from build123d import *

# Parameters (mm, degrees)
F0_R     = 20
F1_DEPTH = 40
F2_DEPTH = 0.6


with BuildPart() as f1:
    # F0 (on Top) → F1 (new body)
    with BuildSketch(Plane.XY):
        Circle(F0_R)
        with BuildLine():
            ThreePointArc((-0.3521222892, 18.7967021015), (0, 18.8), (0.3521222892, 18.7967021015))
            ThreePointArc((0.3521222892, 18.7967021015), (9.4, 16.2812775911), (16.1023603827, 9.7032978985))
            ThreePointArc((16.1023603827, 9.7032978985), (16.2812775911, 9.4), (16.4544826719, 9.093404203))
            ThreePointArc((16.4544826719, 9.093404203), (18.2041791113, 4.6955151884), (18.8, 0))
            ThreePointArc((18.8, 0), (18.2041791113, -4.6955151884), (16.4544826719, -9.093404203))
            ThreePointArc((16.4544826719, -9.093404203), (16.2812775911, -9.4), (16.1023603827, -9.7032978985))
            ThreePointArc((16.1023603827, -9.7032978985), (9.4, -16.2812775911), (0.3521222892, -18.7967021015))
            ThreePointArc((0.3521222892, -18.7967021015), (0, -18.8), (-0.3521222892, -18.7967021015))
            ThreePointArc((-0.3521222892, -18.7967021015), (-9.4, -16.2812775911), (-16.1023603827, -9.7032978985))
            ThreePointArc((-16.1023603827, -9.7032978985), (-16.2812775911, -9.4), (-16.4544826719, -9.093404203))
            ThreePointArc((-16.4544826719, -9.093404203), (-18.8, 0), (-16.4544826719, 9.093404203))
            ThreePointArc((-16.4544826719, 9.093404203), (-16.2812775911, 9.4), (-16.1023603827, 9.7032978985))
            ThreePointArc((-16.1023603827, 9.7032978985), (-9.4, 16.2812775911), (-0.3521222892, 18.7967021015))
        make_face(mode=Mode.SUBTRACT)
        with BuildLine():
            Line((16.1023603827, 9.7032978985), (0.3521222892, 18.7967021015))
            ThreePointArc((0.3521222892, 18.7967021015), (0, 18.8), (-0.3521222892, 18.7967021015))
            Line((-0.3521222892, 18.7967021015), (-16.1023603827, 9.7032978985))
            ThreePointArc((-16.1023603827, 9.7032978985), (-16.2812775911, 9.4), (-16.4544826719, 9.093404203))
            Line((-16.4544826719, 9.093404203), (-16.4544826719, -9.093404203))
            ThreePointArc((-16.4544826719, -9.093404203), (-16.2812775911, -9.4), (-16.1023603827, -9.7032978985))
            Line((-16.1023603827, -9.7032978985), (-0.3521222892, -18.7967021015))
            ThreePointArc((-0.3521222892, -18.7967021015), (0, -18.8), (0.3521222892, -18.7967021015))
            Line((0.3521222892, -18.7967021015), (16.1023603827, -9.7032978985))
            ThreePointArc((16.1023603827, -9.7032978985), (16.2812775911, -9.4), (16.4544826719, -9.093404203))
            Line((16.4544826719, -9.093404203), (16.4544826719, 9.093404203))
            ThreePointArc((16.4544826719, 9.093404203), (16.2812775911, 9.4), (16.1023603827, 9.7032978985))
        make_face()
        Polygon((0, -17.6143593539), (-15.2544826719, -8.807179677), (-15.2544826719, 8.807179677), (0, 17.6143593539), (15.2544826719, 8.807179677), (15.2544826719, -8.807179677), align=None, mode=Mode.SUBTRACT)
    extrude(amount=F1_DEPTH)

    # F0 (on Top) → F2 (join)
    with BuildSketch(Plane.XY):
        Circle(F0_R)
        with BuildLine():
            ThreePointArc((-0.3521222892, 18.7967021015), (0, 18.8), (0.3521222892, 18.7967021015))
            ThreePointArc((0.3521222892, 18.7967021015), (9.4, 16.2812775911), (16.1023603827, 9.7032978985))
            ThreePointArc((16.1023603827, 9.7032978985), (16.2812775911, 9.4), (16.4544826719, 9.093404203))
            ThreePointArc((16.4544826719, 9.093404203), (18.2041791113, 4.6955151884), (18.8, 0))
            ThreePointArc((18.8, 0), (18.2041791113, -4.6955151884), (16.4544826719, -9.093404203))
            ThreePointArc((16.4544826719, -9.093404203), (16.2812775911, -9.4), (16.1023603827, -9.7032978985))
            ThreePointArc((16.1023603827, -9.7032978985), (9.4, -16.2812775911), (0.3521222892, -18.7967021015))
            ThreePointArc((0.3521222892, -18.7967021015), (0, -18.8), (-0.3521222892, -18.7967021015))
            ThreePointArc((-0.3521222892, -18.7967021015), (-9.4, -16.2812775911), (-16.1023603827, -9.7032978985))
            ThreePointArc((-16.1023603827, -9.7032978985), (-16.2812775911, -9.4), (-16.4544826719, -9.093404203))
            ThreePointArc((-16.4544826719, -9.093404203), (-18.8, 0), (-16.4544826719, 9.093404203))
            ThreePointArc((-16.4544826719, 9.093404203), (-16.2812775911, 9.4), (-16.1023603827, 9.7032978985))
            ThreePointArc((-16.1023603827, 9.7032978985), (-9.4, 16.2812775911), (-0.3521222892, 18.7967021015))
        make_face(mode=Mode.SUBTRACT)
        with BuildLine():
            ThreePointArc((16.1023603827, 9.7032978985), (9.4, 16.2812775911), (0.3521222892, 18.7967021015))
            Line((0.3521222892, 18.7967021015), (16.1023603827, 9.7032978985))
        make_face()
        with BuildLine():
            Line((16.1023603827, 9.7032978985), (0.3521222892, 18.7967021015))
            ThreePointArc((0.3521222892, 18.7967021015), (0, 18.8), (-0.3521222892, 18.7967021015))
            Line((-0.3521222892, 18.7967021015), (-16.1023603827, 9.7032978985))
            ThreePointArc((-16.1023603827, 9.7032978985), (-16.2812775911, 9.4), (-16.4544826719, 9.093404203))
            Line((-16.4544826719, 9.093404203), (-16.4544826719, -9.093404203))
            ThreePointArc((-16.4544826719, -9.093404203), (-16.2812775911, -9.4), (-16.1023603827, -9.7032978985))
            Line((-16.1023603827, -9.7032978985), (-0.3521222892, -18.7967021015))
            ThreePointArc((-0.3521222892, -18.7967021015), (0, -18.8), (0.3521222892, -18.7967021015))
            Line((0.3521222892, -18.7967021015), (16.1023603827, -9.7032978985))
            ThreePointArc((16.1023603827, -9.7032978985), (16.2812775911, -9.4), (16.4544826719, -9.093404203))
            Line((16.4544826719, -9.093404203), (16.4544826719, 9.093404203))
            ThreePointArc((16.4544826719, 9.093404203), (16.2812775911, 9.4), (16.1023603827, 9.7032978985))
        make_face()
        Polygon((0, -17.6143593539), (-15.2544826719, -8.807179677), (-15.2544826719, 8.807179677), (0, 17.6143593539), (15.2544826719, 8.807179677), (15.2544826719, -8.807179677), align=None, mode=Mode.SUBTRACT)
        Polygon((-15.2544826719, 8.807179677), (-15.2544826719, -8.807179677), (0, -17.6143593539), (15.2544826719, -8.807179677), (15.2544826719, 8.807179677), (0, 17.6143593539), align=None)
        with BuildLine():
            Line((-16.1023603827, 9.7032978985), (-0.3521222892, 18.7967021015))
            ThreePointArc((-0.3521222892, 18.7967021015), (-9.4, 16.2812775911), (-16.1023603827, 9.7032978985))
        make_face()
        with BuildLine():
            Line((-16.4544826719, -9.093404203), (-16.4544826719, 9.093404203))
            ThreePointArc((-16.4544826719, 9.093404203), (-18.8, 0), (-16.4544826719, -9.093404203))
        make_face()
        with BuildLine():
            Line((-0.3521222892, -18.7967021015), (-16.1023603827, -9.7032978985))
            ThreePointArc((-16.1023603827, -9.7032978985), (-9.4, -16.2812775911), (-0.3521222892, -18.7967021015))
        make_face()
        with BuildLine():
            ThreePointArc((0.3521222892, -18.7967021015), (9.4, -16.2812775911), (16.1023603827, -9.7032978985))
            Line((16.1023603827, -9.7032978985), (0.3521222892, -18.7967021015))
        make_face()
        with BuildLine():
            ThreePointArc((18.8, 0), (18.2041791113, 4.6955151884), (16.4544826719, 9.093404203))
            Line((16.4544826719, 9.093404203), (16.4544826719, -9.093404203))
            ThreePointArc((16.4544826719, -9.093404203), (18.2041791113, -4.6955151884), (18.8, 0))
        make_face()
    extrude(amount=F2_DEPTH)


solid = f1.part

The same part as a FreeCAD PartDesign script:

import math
import FreeCAD as App
import Part
import Sketcher
from FreeCAD import Vector
Q = App.Units.Quantity

doc = App.newDocument("Part")
body = doc.addObject("PartDesign::Body", "Body")

# Sketch on XY plane
sketch1 = body.newObject("Sketcher::SketchObject", "Sketch")
sketch1.AttachmentSupport = (doc.getObject("XY_Plane"), [""])
sketch1.MapMode = "FlatFace"
sketch1.addGeometry([
    Part.Circle(Vector(0, 0, 0), Vector(0, 0, 1), 20),  # 0
    Part.ArcOfCircle(Part.Circle(Vector(0, 0, 0), Vector(0, 0, 1), 19), math.radians(-149), math.radians(-91)),  # 1
    Part.LineSegment(Vector(-16, -10, 0), Vector(0, -19, 0)),  # 2
    Part.ArcOfCircle(Part.Circle(Vector(0, 0, 0), Vector(0, 0, 1), 19), math.radians(-89), math.radians(-31)),  # 3
    Part.LineSegment(Vector(0, -19, 0), Vector(16, -10, 0)),  # 4
    Part.ArcOfCircle(Part.Circle(Vector(0, 0, 0), Vector(0, 0, 1), 19), math.radians(151), math.radians(209)),  # 5
    Part.LineSegment(Vector(-16, 9, 0), Vector(-16, -9, 0)),  # 6
    Part.ArcOfCircle(Part.Circle(Vector(0, 0, 0), Vector(0, 0, 1), 19), math.radians(91), math.radians(149)),  # 7
    Part.LineSegment(Vector(0, 19, 0), Vector(-16, 10, 0)),  # 8
    Part.LineSegment(Vector(15, -9, 0), Vector(0, -18, 0)),  # 9
    Part.LineSegment(Vector(0, -18, 0), Vector(-15, -9, 0)),  # 10
    Part.LineSegment(Vector(-15, -9, 0), Vector(-15, 9, 0)),  # 11
    Part.LineSegment(Vector(-15, 9, 0), Vector(0, 18, 0)),  # 12
    Part.LineSegment(Vector(0, 18, 0), Vector(15, 9, 0)),  # 13
    Part.LineSegment(Vector(15, 9, 0), Vector(15, -9, 0)),  # 14
    Part.ArcOfCircle(Part.Circle(Vector(0, 0, 0), Vector(0, 0, 1), 19), math.radians(-29), math.radians(0)),  # 15
    Part.LineSegment(Vector(16, -9, 0), Vector(16, 9, 0)),  # 16
    Part.ArcOfCircle(Part.Circle(Vector(0, 0, 0), Vector(0, 0, 1), 19), math.radians(0), math.radians(29)),  # 17
    Part.ArcOfCircle(Part.Circle(Vector(0, 0, 0), Vector(0, 0, 1), 19), math.radians(31), math.radians(89)),  # 18
    Part.LineSegment(Vector(16, 10, 0), Vector(0, 19, 0)),  # 19
], False)
sketch1.addConstraint([
    Sketcher.Constraint("Coincident", 1, 1, 2, 1),
    Sketcher.Constraint("Coincident", 2, 2, 1, 2),
    Sketcher.Constraint("Coincident", 3, 1, 4, 1),
    Sketcher.Constraint("Coincident", 4, 2, 3, 2),
    Sketcher.Constraint("Coincident", 5, 1, 6, 1),
    Sketcher.Constraint("Coincident", 6, 2, 5, 2),
    Sketcher.Constraint("Coincident", 7, 1, 8, 1),
    Sketcher.Constraint("Coincident", 8, 2, 7, 2),
    Sketcher.Constraint("Coincident", 9, 2, 10, 1),
    Sketcher.Constraint("Coincident", 10, 2, 11, 1),
    Sketcher.Constraint("Coincident", 11, 2, 12, 1),
    Sketcher.Constraint("Coincident", 12, 2, 13, 1),
    Sketcher.Constraint("Coincident", 13, 2, 14, 1),
    Sketcher.Constraint("Coincident", 14, 2, 9, 1),
    Sketcher.Constraint("Coincident", 15, 1, 16, 1),
    Sketcher.Constraint("Coincident", 16, 2, 17, 2),
    Sketcher.Constraint("Tangent", 17, 1, 15, 2),
    Sketcher.Constraint("Coincident", 18, 1, 19, 1),
    Sketcher.Constraint("Coincident", 19, 2, 18, 2),
    Sketcher.Constraint("Vertical", 6),
    Sketcher.Constraint("Vertical", 11),
    Sketcher.Constraint("Vertical", 14),
    Sketcher.Constraint("Vertical", 16),
    Sketcher.Constraint("Coincident", 0, 3, -1, 1),
    Sketcher.Constraint("Coincident", 1, 3, -1, 1),
    Sketcher.Constraint("Coincident", 3, 3, -1, 1),
    Sketcher.Constraint("Coincident", 5, 3, -1, 1),
    Sketcher.Constraint("Coincident", 7, 3, -1, 1),
    Sketcher.Constraint("Coincident", 15, 3, -1, 1),
    Sketcher.Constraint("Coincident", 18, 3, -1, 1),
    Sketcher.Constraint("Equal", 1, 3),
    Sketcher.Constraint("Equal", 3, 5),
    Sketcher.Constraint("Equal", 5, 7),
    Sketcher.Constraint("Equal", 7, 15),
    Sketcher.Constraint("Equal", 15, 17),
    Sketcher.Constraint("Equal", 17, 18),
    Sketcher.Constraint("Symmetric", 9, 2, 12, 2, -1, 1),
    Sketcher.Constraint("Symmetric", 10, 2, 13, 2, -1, 1),
    Sketcher.Constraint("PointOnObject", 9, 2, -2),
    Sketcher.Constraint("PointOnObject", 17, 1, -1),
    Sketcher.Constraint("Parallel", 4, 8),
    Sketcher.Constraint("Parallel", 8, 9),
    Sketcher.Constraint("Parallel", 2, 10),
    Sketcher.Constraint("Parallel", 9, 12),
    Sketcher.Constraint("Parallel", 13, 19),
    Sketcher.Constraint("Horizontal", 2, 2, 3, 1),
    Sketcher.Constraint("Horizontal", 1, 1, 4, 2),
    Sketcher.Constraint("Horizontal", 6, 2, 15, 1),
    Sketcher.Constraint("Horizontal", 8, 2, 18, 1),
    Sketcher.Constraint("Vertical", 2, 2, 7, 1),
    Sketcher.Constraint("Diameter", 0, 40.0),
    Sketcher.Constraint("Radius", 1, 18.8),
    Sketcher.Constraint("Angle", 2, Q("-30 deg")),
    Sketcher.Constraint("DistanceX", 6, 2, 10, 2, 1.2),
    Sketcher.Constraint("DistanceY", 6, 2, 6, 1, 18.186808),
    Sketcher.Constraint("DistanceY", 11, 1, 11, 2, 17.614359),
    Sketcher.Constraint("Distance", 2, 18.186808),
])
pad1 = body.newObject("PartDesign::Pad", "Pad")
pad1.Profile = sketch1
pad1.Length = 40

# Sketch on XY plane
sketch2 = body.newObject("Sketcher::SketchObject", "Sketch001")
sketch2.AttachmentSupport = (doc.getObject("XY_Plane"), [""])
sketch2.MapMode = "FlatFace"
sketch2.addGeometry(Part.Circle(Vector(0, 0, 0), Vector(0, 0, 1), 20), False)
sketch2.addConstraint([
    Sketcher.Constraint("Coincident", 0, 3, -1, 1),
    Sketcher.Constraint("Diameter", 0, 40.0),
])
pad2 = body.newObject("PartDesign::Pad", "Pad001")
pad2.Profile = sketch2
pad2.Length = 0.6

doc.recompute()
